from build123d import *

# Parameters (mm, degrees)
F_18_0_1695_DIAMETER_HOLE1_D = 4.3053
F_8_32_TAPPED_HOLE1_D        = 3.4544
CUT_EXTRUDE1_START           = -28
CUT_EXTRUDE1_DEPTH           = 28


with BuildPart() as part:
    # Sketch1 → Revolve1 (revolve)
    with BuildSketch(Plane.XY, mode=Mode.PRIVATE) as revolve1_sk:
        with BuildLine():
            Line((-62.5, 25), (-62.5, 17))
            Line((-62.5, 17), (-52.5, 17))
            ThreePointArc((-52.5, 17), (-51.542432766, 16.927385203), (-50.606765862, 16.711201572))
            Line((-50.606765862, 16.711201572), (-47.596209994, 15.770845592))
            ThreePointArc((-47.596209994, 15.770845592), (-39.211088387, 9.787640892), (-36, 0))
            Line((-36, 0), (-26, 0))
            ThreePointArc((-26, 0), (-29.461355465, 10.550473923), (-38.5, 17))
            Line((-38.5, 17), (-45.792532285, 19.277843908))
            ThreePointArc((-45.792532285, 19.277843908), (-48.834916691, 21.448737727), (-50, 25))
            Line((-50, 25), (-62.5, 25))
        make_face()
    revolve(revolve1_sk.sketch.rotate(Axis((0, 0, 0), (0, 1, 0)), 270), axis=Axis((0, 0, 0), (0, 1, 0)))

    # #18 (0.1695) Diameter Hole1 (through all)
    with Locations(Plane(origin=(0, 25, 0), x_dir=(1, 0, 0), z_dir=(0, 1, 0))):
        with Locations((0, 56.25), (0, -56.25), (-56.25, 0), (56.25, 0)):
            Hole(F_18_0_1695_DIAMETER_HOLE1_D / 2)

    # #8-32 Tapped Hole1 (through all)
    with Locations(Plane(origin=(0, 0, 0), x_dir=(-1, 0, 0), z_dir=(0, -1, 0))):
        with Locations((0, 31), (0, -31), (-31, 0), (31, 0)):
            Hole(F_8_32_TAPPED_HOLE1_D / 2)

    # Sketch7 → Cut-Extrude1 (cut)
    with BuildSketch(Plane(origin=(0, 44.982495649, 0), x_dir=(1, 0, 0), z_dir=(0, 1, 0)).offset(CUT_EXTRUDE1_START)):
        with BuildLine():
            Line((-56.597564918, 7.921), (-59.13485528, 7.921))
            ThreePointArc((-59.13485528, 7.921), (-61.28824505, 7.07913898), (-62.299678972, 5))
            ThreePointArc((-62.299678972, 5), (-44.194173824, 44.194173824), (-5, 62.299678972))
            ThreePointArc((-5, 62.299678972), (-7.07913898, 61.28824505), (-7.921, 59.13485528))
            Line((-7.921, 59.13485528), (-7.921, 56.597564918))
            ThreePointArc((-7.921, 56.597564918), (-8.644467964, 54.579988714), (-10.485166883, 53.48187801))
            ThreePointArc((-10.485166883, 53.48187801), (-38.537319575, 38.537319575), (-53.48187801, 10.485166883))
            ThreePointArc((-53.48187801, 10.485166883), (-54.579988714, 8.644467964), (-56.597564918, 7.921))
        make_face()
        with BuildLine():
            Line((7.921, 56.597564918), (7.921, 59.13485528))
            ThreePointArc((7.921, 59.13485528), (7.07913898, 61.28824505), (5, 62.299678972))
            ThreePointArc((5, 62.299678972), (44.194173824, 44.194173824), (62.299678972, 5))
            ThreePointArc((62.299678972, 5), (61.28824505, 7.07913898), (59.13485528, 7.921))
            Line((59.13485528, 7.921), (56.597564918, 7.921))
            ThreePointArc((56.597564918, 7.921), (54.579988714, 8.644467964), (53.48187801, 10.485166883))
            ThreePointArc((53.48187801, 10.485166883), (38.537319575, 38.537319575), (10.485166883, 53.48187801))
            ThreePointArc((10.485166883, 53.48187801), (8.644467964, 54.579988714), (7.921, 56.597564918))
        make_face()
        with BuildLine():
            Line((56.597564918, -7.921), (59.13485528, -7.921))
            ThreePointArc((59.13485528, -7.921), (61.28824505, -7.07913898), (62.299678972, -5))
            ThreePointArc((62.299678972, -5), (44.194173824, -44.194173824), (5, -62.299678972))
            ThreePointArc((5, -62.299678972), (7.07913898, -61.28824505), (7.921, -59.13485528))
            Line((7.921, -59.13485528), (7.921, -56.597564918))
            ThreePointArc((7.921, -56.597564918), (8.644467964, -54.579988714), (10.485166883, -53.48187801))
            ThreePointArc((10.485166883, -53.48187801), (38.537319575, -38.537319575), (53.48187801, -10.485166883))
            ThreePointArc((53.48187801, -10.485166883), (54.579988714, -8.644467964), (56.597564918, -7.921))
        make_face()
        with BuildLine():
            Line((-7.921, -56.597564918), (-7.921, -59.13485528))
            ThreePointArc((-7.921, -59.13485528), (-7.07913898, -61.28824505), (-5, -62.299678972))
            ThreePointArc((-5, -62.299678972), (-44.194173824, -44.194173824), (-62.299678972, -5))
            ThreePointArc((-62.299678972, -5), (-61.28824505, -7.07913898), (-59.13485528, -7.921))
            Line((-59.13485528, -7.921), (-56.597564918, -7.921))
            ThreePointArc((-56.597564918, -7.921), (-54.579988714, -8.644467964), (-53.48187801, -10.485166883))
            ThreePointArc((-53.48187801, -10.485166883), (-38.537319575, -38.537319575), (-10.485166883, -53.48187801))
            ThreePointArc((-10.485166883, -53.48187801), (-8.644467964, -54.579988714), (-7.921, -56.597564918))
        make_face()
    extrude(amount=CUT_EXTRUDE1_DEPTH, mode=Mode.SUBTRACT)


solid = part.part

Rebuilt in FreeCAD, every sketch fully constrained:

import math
import FreeCAD as App
import Part
import Sketcher
from FreeCAD import Vector
Q = App.Units.Quantity

doc = App.newDocument("Part")
body = doc.addObject("PartDesign::Body", "Body")

# Sketch on XY plane
sketch1 = body.newObject("Sketcher::SketchObject", "Sketch")
sketch1.AttachmentSupport = (doc.getObject("XY_Plane"), [""])
sketch1.MapMode = "FlatFace"
sketch1.addGeometry([
    Part.LineSegment(Vector(-62.5, 25, 0), Vector(-62.5, 17, 0)),  # 0
    Part.LineSegment(Vector(-62.5, 17, 0), Vector(-52.5, 17, 0)),  # 1
    Part.ArcOfCircle(Part.Circle(Vector(-52.5, 10.6, 0), Vector(0, 0, 1), 6.4), math.radians(72.65), math.radians(90)),  # 2
    Part.LineSegment(Vector(-50.6, 16.7, 0), Vector(-47.6, 15.8, 0)),  # 3
    Part.ArcOfCircle(Part.Circle(Vector(-52.5, 0, 0), Vector(0, 0, 1), 16.5), math.radians(0), math.radians(73)),  # 4
    Part.LineSegment(Vector(-36, 0, 0), Vector(-26, 0, 0)),  # 5
    Part.ArcOfCircle(Part.Circle(Vector(-43.8, 0, 0), Vector(0, 0, 1), 17.8), math.radians(0), math.radians(73)),  # 6
    Part.LineSegment(Vector(-38.5, 17, 0), Vector(-45.8, 19.3, 0)),  # 7
    Part.ArcOfCircle(Part.Circle(Vector(-44, 25, 0), Vector(0, 0, 1), 6), math.radians(180), math.radians(253)),  # 8
    Part.LineSegment(Vector(-50, 25, 0), Vector(-62.5, 25, 0)),  # 9
], False)
sketch1.addConstraint([
    Sketcher.Constraint("Coincident", 0, 2, 1, 1),
    Sketcher.Constraint("Tangent", 1, 2, 2, 2),
    Sketcher.Constraint("Tangent", 2, 1, 3, 1),
    Sketcher.Constraint("Tangent", 3, 2, 4, 2),
    Sketcher.Constraint("Coincident", 4, 1, 5, 1),
    Sketcher.Constraint("Coincident", 5, 2, 6, 1),
    Sketcher.Constraint("Tangent", 6, 2, 7, 1),
    Sketcher.Constraint("Tangent", 7, 2, 8, 2),
    Sketcher.Constraint("Coincident", 8, 1, 9, 1),
    Sketcher.Constraint("Coincident", 9, 2, 0, 1),
    Sketcher.Constraint("Vertical", 0),
    Sketcher.Constraint("Horizontal", 1),
    Sketcher.Constraint("Horizontal", 5),
    Sketcher.Constraint("Horizontal", 9),
    Sketcher.Constraint("PointOnObject", 4, 3, -1),
    Sketcher.Constraint("PointOnObject", 6, 3, -1),
    Sketcher.Constraint("PointOnObject", 4, 1, -1),
    Sketcher.Constraint("Parallel", 3, 7),
    Sketcher.Constraint("Horizontal", 1, 2, 6, 2),
    Sketcher.Constraint("Equal", 1, 5),
    Sketcher.Constraint("DistanceX", 1, 1, 1, 2, Q("10 mm")),
    Sketcher.Constraint("DistanceY", 0, 2, 0, 1, Q("8 mm")),
    Sketcher.Constraint("Radius", 2, Q("6.35 mm")),
    Sketcher.Constraint("Radius", 6, Q("17.81 mm")),
    Sketcher.Constraint("DistanceX", 9, 2, 9, 1, Q("12.5 mm")),
    Sketcher.Constraint("DistanceY", -1, 1, 8, 3, Q("25 mm")),
    Sketcher.Constraint("DistanceY", -1, 1, 0, 2, Q("17 mm")),
    Sketcher.Constraint("DistanceX", 4, 1, -1, 1, Q("36 mm")),
    Sketcher.Constraint("DistanceX", 8, 1, -1, 1, Q("50 mm")),
])
revolution = body.newObject("PartDesign::Revolution", "Revolution")
revolution.Profile = sketch1
revolution.ReferenceAxis = (sketch1, ["V_Axis"])
revolution.Angle = 360

# Sketch on XZ plane
sketch2 = body.newObject("Sketcher::SketchObject", "Sketch001")
sketch2.AttachmentSupport = (doc.getObject("XZ_Plane"), [""])
sketch2.MapMode = "FlatFace"
sketch2.AttachmentOffset = App.Placement(Vector(0, 0, -25), App.Rotation())
sketch2.addGeometry([
    Part.Circle(Vector(0, -56.2, 0), Vector(0, 0, 1), 2.2),
    Part.Circle(Vector(0, 56.2, 0), Vector(0, 0, 1), 2.2),
    Part.Circle(Vector(-56.2, 0, 0), Vector(0, 0, 1), 2.2),
    Part.Circle(Vector(56.2, 0, 0), Vector(0, 0, 1), 2.2),
], False)
sketch2.addConstraint([
    Sketcher.Constraint("Equal", 0, 1),
    Sketcher.Constraint("Equal", 1, 2),
    Sketcher.Constraint("Equal", 2, 3),
    Sketcher.Constraint("Symmetric", 0, 3, 1, 3, -1, 1),
    Sketcher.Constraint("Symmetric", 2, 3, 3, 3, -1, 1),
    Sketcher.Constraint("PointOnObject", 0, 3, -2),
    Sketcher.Constraint("PointOnObject", 2, 3, -1),
    Sketcher.Constraint("Diameter", 0, Q("4.3053 mm")),
    Sketcher.Constraint("DistanceY", 0, 3, 1, 3, Q("112.5 mm")),
    Sketcher.Constraint("DistanceX", 2, 3, 3, 3, Q("112.5 mm")),
])
doc.recompute()
hole = body.newObject("PartDesign::Hole", "Hole")
hole.Profile = sketch2
hole.ThreadType = "None"
hole.Diameter = 4.3053
hole.DepthType = "ThroughAll"
hole.Reversed = True

# Sketch on XZ plane
sketch3 = body.newObject("Sketcher::SketchObject", "Sketch002")
sketch3.AttachmentSupport = (doc.getObject("XZ_Plane"), [""])
sketch3.MapMode = "FlatFace"
sketch3.addGeometry([
    Part.Circle(Vector(0, -31, 0), Vector(0, 0, 1), 1.7),
    Part.Circle(Vector(0, 31, 0), Vector(0, 0, 1), 1.7),
    Part.Circle(Vector(31, 0, 0), Vector(0, 0, 1), 1.7),
    Part.Circle(Vector(-31, 0, 0), Vector(0, 0, 1), 1.7),
], False)
sketch3.addConstraint([
    Sketcher.Constraint("Equal", 0, 1),
    Sketcher.Constraint("Equal", 1, 2),
    Sketcher.Constraint("Equal", 2, 3),
    Sketcher.Constraint("Symmetric", 0, 3, 1, 3, -1, 1),
    Sketcher.Constraint("Symmetric", 2, 3, 3, 3, -1, 1),
    Sketcher.Constraint("PointOnObject", 0, 3, -2),
    Sketcher.Constraint("PointOnObject", 2, 3, -1),
    Sketcher.Constraint("DistanceY", 0, 3, -1, 1, Q("31 mm")),
    Sketcher.Constraint("DistanceX", -1, 1, 2, 3, Q("31 mm")),
    Sketcher.Constraint("Diameter", 0, Q("3.4544 mm")),
])
doc.recompute()
hole2 = body.newObject("PartDesign::Hole", "Hole001")
hole2.Profile = sketch3
hole2.ThreadType = "None"
hole2.Diameter = 3.4544
hole2.DepthType = "ThroughAll"

# Sketch on XZ plane
sketch4 = body.newObject("Sketcher::SketchObject", "Sketch003")
sketch4.AttachmentSupport = (doc.getObject("XZ_Plane"), [""])
sketch4.MapMode = "FlatFace"
sketch4.AttachmentOffset = App.Placement(Vector(0, 0, -16.982496), App.Rotation())
sketch4.addGeometry([
    Part.LineSegment(Vector(-59.1, -7.9, 0), Vector(-56.6, -7.9, 0)),  # 0
    Part.ArcOfCircle(Part.Circle(Vector(-56.6, -11.1, 0), Vector(0, 0, 1), 3.2), math.radians(11), math.radians(90)),  # 1
    Part.ArcOfCircle(Part.Circle(Vector(0, 0, 0), Vector(0, 0, 1), 54.5), math.radians(-169), math.radians(-101)),  # 2
    Part.ArcOfCircle(Part.Circle(Vector(-11.1, -56.6, 0), Vector(0, 0, 1), 3.2), math.radians(0), math.radians(79)),  # 3
    Part.LineSegment(Vector(-7.9, -56.6, 0), Vector(-7.9, -59.1, 0)),  # 4
    Part.ArcOfCircle(Part.Circle(Vector(-4.7, -59.1, 0), Vector(0, 0, 1), 3.2), math.radians(180), math.radians(265)),  # 5
    Part.ArcOfCircle(Part.Circle(Vector(0, 0, 0), Vector(0, 0, 1), 62.5), math.radians(-175), math.radians(-95)),  # 6
    Part.ArcOfCircle(Part.Circle(Vector(-59.1, -4.7, 0), Vector(0, 0, 1), 3.2), math.radians(-175), math.radians(-90)),  # 7
    Part.LineSegment(Vector(7.9, -59.1, 0), Vector(7.9, -56.6, 0)),  # 8
    Part.ArcOfCircle(Part.Circle(Vector(11.1, -56.6, 0), Vector(0, 0, 1), 3.2), math.radians(101), math.radians(180)),  # 9
    Part.ArcOfCircle(Part.Circle(Vector(0, 0, 0), Vector(0, 0, 1), 54.5), math.radians(-79), math.radians(-11)),  # 10
    Part.ArcOfCircle(Part.Circle(Vector(56.6, -11.1, 0), Vector(0, 0, 1), 3.2), math.radians(90), math.radians(169)),  # 11
    Part.LineSegment(Vector(56.6, -7.9, 0), Vector(59.1, -7.9, 0)),  # 12
    Part.ArcOfCircle(Part.Circle(Vector(59.1, -4.7, 0), Vector(0, 0, 1), 3.2), math.radians(-90), math.radians(-5)),  # 13
    Part.ArcOfCircle(Part.Circle(Vector(0, 0, 0), Vector(0, 0, 1), 62.5), math.radians(-85), math.radians(-5)),  # 14
    Part.ArcOfCircle(Part.Circle(Vector(4.7, -59.1, 0), Vector(0, 0, 1), 3.2), math.radians(-85), math.radians(0)),  # 15
    Part.LineSegment(Vector(59.1, 7.9, 0), Vector(56.6, 7.9, 0)),  # 16
    Part.ArcOfCircle(Part.Circle(Vector(56.6, 11.1, 0), Vector(0, 0, 1), 3.2), math.radians(-169), math.radians(-90)),  # 17
    Part.ArcOfCircle(Part.Circle(Vector(0, 0, 0), Vector(0, 0, 1), 54.5), math.radians(11), math.radians(79)),  # 18
    Part.ArcOfCircle(Part.Circle(Vector(11.1, 56.6, 0), Vector(0, 0, 1), 3.2), math.radians(-180), math.radians(-101)),  # 19
    Part.LineSegment(Vector(7.9, 56.6, 0), Vector(7.9, 59.1, 0)),  # 20
    Part.ArcOfCircle(Part.Circle(Vector(4.7, 59.1, 0), Vector(0, 0, 1), 3.2), math.radians(0), math.radians(85)),  # 21
    Part.ArcOfCircle(Part.Circle(Vector(0, 0, 0), Vector(0, 0, 1), 62.5), math.radians(5), math.radians(85)),  # 22
    Part.ArcOfCircle(Part.Circle(Vector(59.1, 4.7, 0), Vector(0, 0, 1), 3.2), math.radians(5), math.radians(90)),  # 23
    Part.LineSegment(Vector(-7.9, 59.1, 0), Vector(-7.9, 56.6, 0)),  # 24
    Part.ArcOfCircle(Part.Circle(Vector(-11.1, 56.6, 0), Vector(0, 0, 1), 3.2), math.radians(-79), math.radians(0)),  # 25
    Part.ArcOfCircle(Part.Circle(Vector(0, 0, 0), Vector(0, 0, 1), 54.5), math.radians(101), math.radians(169)),  # 26
    Part.ArcOfCircle(Part.Circle(Vector(-56.6, 11.1, 0), Vector(0, 0, 1), 3.2), math.radians(-90), math.radians(-11)),  # 27
    Part.LineSegment(Vector(-56.6, 7.9, 0), Vector(-59.1, 7.9, 0)),  # 28
    Part.ArcOfCircle(Part.Circle(Vector(-59.1, 4.7, 0), Vector(0, 0, 1), 3.2), math.radians(90), math.radians(175)),  # 29
    Part.ArcOfCircle(Part.Circle(Vector(0, 0, 0), Vector(0, 0, 1), 62.5), math.radians(95), math.radians(175)),  # 30
    Part.ArcOfCircle(Part.Circle(Vector(-4.7, 59.1, 0), Vector(0, 0, 1), 3.2), math.radians(95), math.radians(180)),  # 31
], False)
sketch4.addConstraint([
    Sketcher.Constraint("Tangent", 0, 2, 1, 2),
    Sketcher.Constraint("Tangent", 1, 1, 2, 1),
    Sketcher.Constraint("Tangent", 2, 2, 3, 2),
    Sketcher.Constraint("Tangent", 3, 1, 4, 1),
    Sketcher.Constraint("Tangent", 4, 2, 5, 1),
    Sketcher.Constraint("Tangent", 5, 2, 6, 2),
    Sketcher.Constraint("Tangent", 6, 1, 7, 1),
    Sketcher.Constraint("Tangent", 7, 2, 0, 1),
    Sketcher.Constraint("Tangent", 8, 2, 9, 2),
    Sketcher.Constraint("Tangent", 9, 1, 10, 1),
    Sketcher.Constraint("Tangent", 10, 2, 11, 2),
    Sketcher.Constraint("Tangent", 11, 1, 12, 1),
    Sketcher.Constraint("Tangent", 12, 2, 13, 1),
    Sketcher.Constraint("Tangent", 13, 2, 14, 2),
    Sketcher.Constraint("Tangent", 14, 1, 15, 1),
    Sketcher.Constraint("Tangent", 15, 2, 8, 1),
    Sketcher.Constraint("Tangent", 16, 2, 17, 2),
    Sketcher.Constraint("Tangent", 17, 1, 18, 1),
    Sketcher.Constraint("Tangent", 18, 2, 19, 2),
    Sketcher.Constraint("Tangent", 19, 1, 20, 1),
    Sketcher.Constraint("Tangent", 20, 2, 21, 1),
    Sketcher.Constraint("Tangent", 21, 2, 22, 2),
    Sketcher.Constraint("Tangent", 22, 1, 23, 1),
    Sketcher.Constraint("Tangent", 23, 2, 16, 1),
    Sketcher.Constraint("Tangent", 24, 2, 25, 2),
    Sketcher.Constraint("Tangent", 25, 1, 26, 1),
    Sketcher.Constraint("Tangent", 26, 2, 27, 2),
    Sketcher.Constraint("Tangent", 27, 1, 28, 1),
    Sketcher.Constraint("Tangent", 28, 2, 29, 1),
    Sketcher.Constraint("Tangent", 29, 2, 30, 2),
    Sketcher.Constraint("Tangent", 30, 1, 31, 1),
    Sketcher.Constraint("Tangent", 31, 2, 24, 1),
    Sketcher.Constraint("Horizontal", 0),
    Sketcher.Constraint("Vertical", 4),
    Sketcher.Constraint("Vertical", 8),
    Sketcher.Constraint("Horizontal", 12),
    Sketcher.Constraint("Horizontal", 16),
    Sketcher.Constraint("Vertical", 20),
    Sketcher.Constraint("Vertical", 24),
    Sketcher.Constraint("Horizontal", 28),
    Sketcher.Constraint("Coincident", 2, 3, -1, 1),
    Sketcher.Constraint("Coincident", 6, 3, -1, 1),
    Sketcher.Constraint("Coincident", 10, 3, -1, 1),
    Sketcher.Constraint("Coincident", 14, 3, -1, 1),
    Sketcher.Constraint("Coincident", 18, 3, -1, 1),
    Sketcher.Constraint("Coincident", 22, 3, -1, 1),
    Sketcher.Constraint("Coincident", 26, 3, -1, 1),
    Sketcher.Constraint("Coincident", 30, 3, -1, 1),
    Sketcher.Constraint("Equal", 1, 3),
    Sketcher.Constraint("Equal", 3, 5),
    Sketcher.Constraint("Equal", 5, 7),
    Sketcher.Constraint("Equal", 7, 9),
    Sketcher.Constraint("Equal", 2, 10),
    Sketcher.Constraint("Equal", 9, 11),
    Sketcher.Constraint("Equal", 11, 13),
    Sketcher.Constraint("Equal", 6, 14),
    Sketcher.Constraint("Equal", 13, 15),
    Sketcher.Constraint("Equal", 15, 17),
    Sketcher.Constraint("Equal", 10, 18),
    Sketcher.Constraint("Equal", 17, 19),
    Sketcher.Constraint("Equal", 19, 21),
    Sketcher.Constraint("Equal", 14, 22),
    Sketcher.Constraint("Equal", 21, 23),
    Sketcher.Constraint("Equal", 23, 25),
    Sketcher.Constraint("Equal", 18, 26),
    Sketcher.Constraint("Equal", 25, 27),
    Sketcher.Constraint("Equal", 27, 29),
    Sketcher.Constraint("Equal", 22, 30),
    Sketcher.Constraint("Equal", 29, 31),
    Sketcher.Constraint("Horizontal", 3, 3, 9, 3),
    Sketcher.Constraint("Horizontal", 1, 3, 11, 3),
    Sketcher.Constraint("Horizontal", 19, 3, 25, 3),
    Sketcher.Constraint("Horizontal", 17, 3, 27, 3),
    Sketcher.Constraint("Vertical", 11, 3, 17, 3),
    Sketcher.Constraint("Vertical", 9, 3, 19, 3),
    Sketcher.Constraint("Equal", 28, 4),
    Sketcher.Constraint("Radius", 2, Q("54.5 mm")),
    Sketcher.Constraint("Radius", 6, Q("62.5 mm")),
    Sketcher.Constraint("DistanceX", 5, 2, -1, 1, Q("5 mm")),
    Sketcher.Constraint("Radius", 1, Q("3.175 mm")),
])
pocket1 = body.newObject("PartDesign::Pocket", "Pocket")
pocket1.Profile = sketch4
pocket1.Length = 28

doc.recompute()
